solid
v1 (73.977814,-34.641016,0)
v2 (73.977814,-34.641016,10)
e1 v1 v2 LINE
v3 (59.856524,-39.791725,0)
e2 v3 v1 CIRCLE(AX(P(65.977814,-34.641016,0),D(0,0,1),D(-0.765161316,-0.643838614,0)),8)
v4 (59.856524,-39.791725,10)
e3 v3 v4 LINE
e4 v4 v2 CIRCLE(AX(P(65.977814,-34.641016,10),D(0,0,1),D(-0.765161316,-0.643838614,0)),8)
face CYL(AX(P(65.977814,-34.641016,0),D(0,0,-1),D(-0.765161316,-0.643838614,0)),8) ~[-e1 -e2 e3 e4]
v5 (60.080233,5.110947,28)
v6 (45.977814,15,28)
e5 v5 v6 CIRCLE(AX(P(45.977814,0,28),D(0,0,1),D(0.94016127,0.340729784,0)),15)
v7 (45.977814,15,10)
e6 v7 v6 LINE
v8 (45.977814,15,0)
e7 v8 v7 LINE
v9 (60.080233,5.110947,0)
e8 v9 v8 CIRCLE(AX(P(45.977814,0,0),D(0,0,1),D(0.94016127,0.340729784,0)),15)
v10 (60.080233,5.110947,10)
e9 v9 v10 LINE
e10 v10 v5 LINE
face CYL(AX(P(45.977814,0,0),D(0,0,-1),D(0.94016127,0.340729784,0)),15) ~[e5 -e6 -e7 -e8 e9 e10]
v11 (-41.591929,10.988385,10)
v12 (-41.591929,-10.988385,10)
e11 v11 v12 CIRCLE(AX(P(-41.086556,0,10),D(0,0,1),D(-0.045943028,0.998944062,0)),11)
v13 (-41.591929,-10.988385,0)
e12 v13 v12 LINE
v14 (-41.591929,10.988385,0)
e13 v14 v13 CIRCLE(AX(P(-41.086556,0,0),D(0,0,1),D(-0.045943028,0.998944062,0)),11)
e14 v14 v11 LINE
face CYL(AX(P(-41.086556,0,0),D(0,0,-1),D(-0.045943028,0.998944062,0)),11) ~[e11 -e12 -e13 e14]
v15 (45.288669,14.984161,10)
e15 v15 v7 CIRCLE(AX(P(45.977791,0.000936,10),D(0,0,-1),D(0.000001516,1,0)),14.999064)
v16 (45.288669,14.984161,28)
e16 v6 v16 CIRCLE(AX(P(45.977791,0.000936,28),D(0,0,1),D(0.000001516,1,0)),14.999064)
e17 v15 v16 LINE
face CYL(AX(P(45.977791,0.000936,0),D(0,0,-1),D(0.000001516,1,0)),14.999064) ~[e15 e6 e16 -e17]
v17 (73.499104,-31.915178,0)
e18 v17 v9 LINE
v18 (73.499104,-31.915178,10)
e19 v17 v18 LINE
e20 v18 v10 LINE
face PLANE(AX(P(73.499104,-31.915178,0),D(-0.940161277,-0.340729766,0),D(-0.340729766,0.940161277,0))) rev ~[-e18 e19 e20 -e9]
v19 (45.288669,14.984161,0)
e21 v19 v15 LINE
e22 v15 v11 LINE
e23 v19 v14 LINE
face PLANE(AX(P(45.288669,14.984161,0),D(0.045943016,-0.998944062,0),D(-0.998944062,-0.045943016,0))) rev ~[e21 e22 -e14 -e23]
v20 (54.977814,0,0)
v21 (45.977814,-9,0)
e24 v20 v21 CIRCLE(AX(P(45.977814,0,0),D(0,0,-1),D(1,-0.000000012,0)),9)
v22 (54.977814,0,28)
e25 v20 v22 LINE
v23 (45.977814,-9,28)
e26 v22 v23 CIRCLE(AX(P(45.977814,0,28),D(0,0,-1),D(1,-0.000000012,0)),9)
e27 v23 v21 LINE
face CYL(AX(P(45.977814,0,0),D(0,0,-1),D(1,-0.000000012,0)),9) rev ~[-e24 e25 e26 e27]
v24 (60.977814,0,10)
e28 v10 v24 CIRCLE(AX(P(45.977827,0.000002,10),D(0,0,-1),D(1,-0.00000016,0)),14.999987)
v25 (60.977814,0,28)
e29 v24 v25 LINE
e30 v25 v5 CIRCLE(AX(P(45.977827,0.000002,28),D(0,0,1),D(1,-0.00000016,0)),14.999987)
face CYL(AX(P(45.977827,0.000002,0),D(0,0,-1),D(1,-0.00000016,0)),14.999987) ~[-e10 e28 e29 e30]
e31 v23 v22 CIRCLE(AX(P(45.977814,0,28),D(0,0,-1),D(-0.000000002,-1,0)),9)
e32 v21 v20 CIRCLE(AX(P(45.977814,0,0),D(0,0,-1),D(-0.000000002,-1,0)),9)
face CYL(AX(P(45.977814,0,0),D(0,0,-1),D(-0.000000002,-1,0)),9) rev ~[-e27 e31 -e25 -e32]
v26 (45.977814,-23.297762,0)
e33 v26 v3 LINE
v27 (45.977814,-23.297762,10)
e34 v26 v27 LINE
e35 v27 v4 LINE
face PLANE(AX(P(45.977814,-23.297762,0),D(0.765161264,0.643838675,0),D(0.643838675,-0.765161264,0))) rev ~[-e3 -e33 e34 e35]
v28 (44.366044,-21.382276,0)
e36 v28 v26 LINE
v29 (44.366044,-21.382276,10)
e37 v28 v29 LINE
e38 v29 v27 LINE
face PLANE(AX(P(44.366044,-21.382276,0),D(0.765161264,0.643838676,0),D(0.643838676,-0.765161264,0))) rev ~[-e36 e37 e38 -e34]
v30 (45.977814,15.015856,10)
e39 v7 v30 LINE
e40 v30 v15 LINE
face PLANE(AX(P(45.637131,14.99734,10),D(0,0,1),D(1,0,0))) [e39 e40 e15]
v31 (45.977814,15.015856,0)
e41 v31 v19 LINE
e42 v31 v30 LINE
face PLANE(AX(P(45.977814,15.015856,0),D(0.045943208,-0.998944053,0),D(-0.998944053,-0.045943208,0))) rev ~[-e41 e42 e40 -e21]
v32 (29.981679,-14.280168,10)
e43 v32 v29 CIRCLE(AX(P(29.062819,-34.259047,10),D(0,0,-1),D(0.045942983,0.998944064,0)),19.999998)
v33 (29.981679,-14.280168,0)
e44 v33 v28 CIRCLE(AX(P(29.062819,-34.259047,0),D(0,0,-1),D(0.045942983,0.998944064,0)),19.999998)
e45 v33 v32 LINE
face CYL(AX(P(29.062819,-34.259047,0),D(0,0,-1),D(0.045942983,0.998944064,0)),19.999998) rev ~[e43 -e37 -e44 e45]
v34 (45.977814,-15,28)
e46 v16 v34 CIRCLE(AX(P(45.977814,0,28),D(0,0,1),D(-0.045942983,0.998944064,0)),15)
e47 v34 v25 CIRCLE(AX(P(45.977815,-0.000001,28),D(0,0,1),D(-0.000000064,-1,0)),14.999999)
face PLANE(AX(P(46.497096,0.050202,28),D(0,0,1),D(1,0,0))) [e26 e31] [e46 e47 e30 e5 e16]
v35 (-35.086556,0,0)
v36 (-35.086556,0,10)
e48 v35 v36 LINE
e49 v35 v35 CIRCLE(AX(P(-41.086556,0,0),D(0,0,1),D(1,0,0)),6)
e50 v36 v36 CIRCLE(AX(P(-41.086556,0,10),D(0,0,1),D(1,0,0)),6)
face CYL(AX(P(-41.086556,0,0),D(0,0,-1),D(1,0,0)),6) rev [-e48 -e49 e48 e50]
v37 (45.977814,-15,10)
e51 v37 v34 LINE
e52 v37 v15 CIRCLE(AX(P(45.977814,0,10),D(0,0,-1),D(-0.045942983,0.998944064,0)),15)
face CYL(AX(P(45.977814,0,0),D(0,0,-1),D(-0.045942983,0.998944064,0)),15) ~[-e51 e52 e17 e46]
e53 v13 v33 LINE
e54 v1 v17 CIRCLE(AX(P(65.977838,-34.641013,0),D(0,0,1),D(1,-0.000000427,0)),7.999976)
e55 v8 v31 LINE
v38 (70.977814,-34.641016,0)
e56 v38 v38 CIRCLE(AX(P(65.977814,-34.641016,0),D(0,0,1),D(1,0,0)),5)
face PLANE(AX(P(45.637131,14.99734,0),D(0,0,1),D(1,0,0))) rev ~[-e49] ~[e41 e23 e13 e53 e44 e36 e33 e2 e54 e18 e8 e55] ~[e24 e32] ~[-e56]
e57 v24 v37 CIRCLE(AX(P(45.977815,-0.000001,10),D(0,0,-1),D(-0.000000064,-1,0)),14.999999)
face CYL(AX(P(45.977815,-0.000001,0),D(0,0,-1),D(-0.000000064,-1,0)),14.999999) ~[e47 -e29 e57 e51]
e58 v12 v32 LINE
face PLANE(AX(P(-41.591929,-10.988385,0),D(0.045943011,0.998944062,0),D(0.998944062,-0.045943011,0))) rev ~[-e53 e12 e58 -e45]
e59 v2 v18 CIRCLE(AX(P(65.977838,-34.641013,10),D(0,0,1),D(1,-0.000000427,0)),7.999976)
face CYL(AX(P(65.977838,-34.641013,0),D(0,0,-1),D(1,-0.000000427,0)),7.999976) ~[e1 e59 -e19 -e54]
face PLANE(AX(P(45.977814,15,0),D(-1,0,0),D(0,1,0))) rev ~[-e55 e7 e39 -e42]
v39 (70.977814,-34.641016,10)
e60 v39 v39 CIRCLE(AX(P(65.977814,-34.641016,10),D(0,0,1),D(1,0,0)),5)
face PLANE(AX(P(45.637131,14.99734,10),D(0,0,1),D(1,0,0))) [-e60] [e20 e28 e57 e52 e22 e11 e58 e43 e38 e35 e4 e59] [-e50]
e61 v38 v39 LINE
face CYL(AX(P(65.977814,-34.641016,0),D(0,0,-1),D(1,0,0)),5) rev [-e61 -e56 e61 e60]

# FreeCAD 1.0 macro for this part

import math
import FreeCAD as App
import Part
import Sketcher

V = App.Vector
Q = App.Units.Quantity

doc = App.newDocument("Part")
params = doc.addObject("Spreadsheet::Sheet", "Params")
for row, (alias, value) in enumerate([
    ("sketch1_diameter", "10 mm"),
    ("sketch1_diameter2", "12 mm"),
    ("sketch1_radius", "11 mm"),
    ("sketch1_radius2", "19.999998 mm"),
    ("sketch1_radius3", "8 mm"),
    ("pad1_length", "10 mm"),
    ("sketch2_radius", "15 mm"),
    ("sketch2_radius2", "15 mm"),
    ("sketch2_radius3", "9 mm"),
    ("pad2_length", "28 mm"),
], start=1):
    params.set(f"A{row}", alias)
    params.set(f"B{row}", "=" + value)
    params.setAlias(f"B{row}", alias)

body = doc.addObject("PartDesign::Body", "Body")

# Sketch on XY plane
sketch1 = body.newObject("Sketcher::SketchObject", "Sketch")
sketch1.AttachmentSupport = (doc.getObject("XY_Plane"), [""])
sketch1.MapMode = "FlatFace"
sketch1.addGeometry([
    Part.LineSegment(V(45.977814, 15.015856, 0), V(45.288669, 14.984161, 0)),  # 0
    Part.LineSegment(V(45.288669, 14.984161, 0), V(-41.591929, 10.988385, 0)),  # 1
    Part.ArcOfCircle(Part.Circle(V(-41.086556, 0, 0), V(0, 0, 1), 11), math.radians(92.633269), math.radians(267.366731)),  # 2
    Part.LineSegment(V(-41.591929, -10.988385, 0), V(29.981679, -14.280168, 0)),  # 3
    Part.ArcOfCircle(Part.Circle(V(29.062819, -34.259047, 0), V(0, 0, 1), 19.999998), math.radians(40.078656), math.radians(87.366734)),  # 4
    Part.LineSegment(V(44.366044, -21.382276, 0), V(45.977814, -23.297762, 0)),  # 5
    Part.LineSegment(V(45.977814, -23.297762, 0), V(59.856524, -39.791725, 0)),  # 6
    Part.ArcOfCircle(Part.Circle(V(65.977814, -34.641016, 0), V(0, 0, 1), 8), math.radians(-139.921346), math.radians(0.000002)),  # 7
    Part.ArcOfCircle(Part.Circle(V(65.977838, -34.641013, 0), V(0, 0, 1), 7.999976), math.radians(-0.000024), math.radians(19.921376)),  # 8
    Part.LineSegment(V(73.499104, -31.915178, 0), V(60.080233, 5.110947, 0)),  # 9
    Part.ArcOfCircle(Part.Circle(V(45.977814, 0, 0), V(0, 0, 1), 15), math.radians(19.921343), math.radians(90.000001)),  # 10
    Part.LineSegment(V(45.977814, 15, 0), V(45.977814, 15.015856, 0)),  # 11
    Part.Circle(V(65.977814, -34.641016, 0), V(0, 0, 1), 5),  # 12
    Part.Circle(V(-41.086556, 0, 0), V(0, 0, 1), 6),  # 13
    Part.ArcOfCircle(Part.Circle(V(45.977814, 0, 0), V(0, 0, 1), 9), math.radians(0), math.radians(270)),  # 14
    Part.ArcOfCircle(Part.Circle(V(45.977814, 0, 0), V(0, 0, 1), 9), math.radians(-89.999999), math.radians(-0.000001)),  # 15
], False)
sketch1.addConstraint([
    Sketcher.Constraint("Coincident", 0, 2, 1, 1),
    Sketcher.Constraint("Tangent", 1, 2, 2, 1),
    Sketcher.Constraint("Tangent", 2, 2, 3, 1),
    Sketcher.Constraint("Tangent", 3, 2, 4, 2),
    Sketcher.Constraint("Tangent", 4, 1, 5, 1),
    Sketcher.Constraint("Coincident", 5, 2, 6, 1),
    Sketcher.Constraint("Tangent", 6, 2, 7, 1),
    Sketcher.Constraint("Tangent", 7, 2, 8, 1),
    Sketcher.Constraint("Tangent", 8, 2, 9, 1),
    Sketcher.Constraint("Tangent", 9, 2, 10, 1),
    Sketcher.Constraint("Coincident", 10, 2, 11, 1),
    Sketcher.Constraint("Coincident", 11, 2, 0, 1),
    Sketcher.Constraint("Tangent", 14, 1, 15, 2),
    Sketcher.Constraint("Coincident", 15, 1, 14, 2),
    Sketcher.Constraint("Vertical", 11),
    Sketcher.Constraint("Coincident", 12, 3, 7, 3),
    Sketcher.Constraint("Coincident", 13, 3, 2, 3),
    Sketcher.Constraint("Coincident", 14, 3, 10, 3),
    Sketcher.Constraint("Symmetric", 1, 2, 2, 2, -1),
    Sketcher.Constraint("PointOnObject", 10, 3, -1),
    Sketcher.Constraint("PointOnObject", 14, 1, -1),
    Sketcher.Constraint("Parallel", 0, 1),
    Sketcher.Constraint("Parallel", 5, 6),
    Sketcher.Constraint("Horizontal", 12, 3, 7, 2),
    Sketcher.Constraint("Vertical", 15, 3, 5, 2),
    Sketcher.Constraint("Vertical", 5, 2, 10, 2),
    Sketcher.Constraint("Vertical", 11, 2, 15, 1),
    Sketcher.Constraint("Diameter", 12, Q("10 mm")),
    Sketcher.Constraint("Diameter", 13, Q("12 mm")),
    Sketcher.Constraint("Radius", 2, Q("11 mm")),
    Sketcher.Constraint("Radius", 4, Q("19.999998 mm")),
    Sketcher.Constraint("Radius", 7, Q("8 mm")),
    Sketcher.Constraint("Radius", 10, Q("15 mm")),
    Sketcher.Constraint("Radius", 14, Q("9 mm")),
    Sketcher.Constraint("DistanceX", 10, 3, 7, 3, Q("20 mm")),
    Sketcher.Constraint("Radius", 8, Q("7.999976 mm")),
    Sketcher.Constraint("Distance", 6, Q("21.556192 mm")),
    Sketcher.Constraint("DistanceY", 11, 1, 11, 2, Q("0.015856 mm")),
    Sketcher.Constraint("DistanceX", -1, 1, 4, 3, Q("29.062819 mm")),
    Sketcher.Constraint("DistanceX", -1, 1, 0, 2, Q("45.288669 mm")),
    Sketcher.Constraint("DistanceY", -1, 1, 0, 2, Q("14.984161 mm")),
    Sketcher.Constraint("DistanceX", 1, 2, -1, 1, Q("41.591929 mm")),
])
sketch1.setExpression("Constraints[27]", "Params.sketch1_diameter")
sketch1.setExpression("Constraints[28]", "Params.sketch1_diameter2")
sketch1.setExpression("Constraints[29]", "Params.sketch1_radius")
sketch1.setExpression("Constraints[30]", "Params.sketch1_radius2")
sketch1.setExpression("Constraints[31]", "Params.sketch1_radius3")
pad1 = body.newObject("PartDesign::Pad", "Pad")
pad1.Profile = sketch1
pad1.setExpression("Length", "Params.pad1_length")

# Sketch on XY plane
sketch2 = body.newObject("Sketcher::SketchObject", "Sketch001")
sketch2.AttachmentSupport = (doc.getObject("XY_Plane"), [""])
sketch2.MapMode = "FlatFace"
sketch2.addGeometry([
    Part.ArcOfCircle(Part.Circle(V(45.977791, 0.000936, 0), V(0, 0, 1), 14.999064), math.radians(89.999913), math.radians(92.633344)),  # 0
    Part.ArcOfCircle(Part.Circle(V(45.977814, 0, 0), V(0, 0, 1), 15), math.radians(92.633266), math.radians(270.000001)),  # 1
    Part.ArcOfCircle(Part.Circle(V(45.977815, -0.000001, 0), V(0, 0, 1), 14.999999), math.radians(-90.000004), math.radians(0.000004)),  # 2
    Part.ArcOfCircle(Part.Circle(V(45.977827, 0.000002, 0), V(0, 0, 1), 14.999987), math.radians(-0.000009), math.radians(19.921352)),  # 3
    Part.ArcOfCircle(Part.Circle(V(45.977814, 0, 0), V(0, 0, 1), 15), math.radians(19.921343), math.radians(90.000001)),  # 4
    Part.ArcOfCircle(Part.Circle(V(45.977814, 0, 0), V(0, 0, 1), 9), math.radians(0), math.radians(270)),  # 5
    Part.ArcOfCircle(Part.Circle(V(45.977814, 0, 0), V(0, 0, 1), 9), math.radians(-89.999999), math.radians(-0.000001)),  # 6
], False)
sketch2.addConstraint([
    Sketcher.Constraint("Coincident", 0, 2, 1, 1),
    Sketcher.Constraint("Coincident", 1, 2, 2, 1),
    Sketcher.Constraint("Coincident", 2, 2, 3, 1),
    Sketcher.Constraint("Coincident", 3, 2, 4, 1),
    Sketcher.Constraint("Coincident", 4, 2, 0, 1),
    Sketcher.Constraint("Coincident", 5, 1, 6, 2),
    Sketcher.Constraint("Coincident", 6, 1, 5, 2),
    Sketcher.Constraint("Coincident", 2, 3, 1, 3),
    Sketcher.Constraint("Coincident", 4, 3, 1, 3),
    Sketcher.Constraint("Coincident", 5, 3, 1, 3),
    Sketcher.Constraint("PointOnObject", 1, 3, -1),
    Sketcher.Constraint("PointOnObject", 6, 3, -1),
    Sketcher.Constraint("PointOnObject", 2, 2, -1),
    Sketcher.Constraint("PointOnObject", 5, 1, -1),
    Sketcher.Constraint("Radius", 1, Q("15 mm")),
    Sketcher.Constraint("Radius", 4, Q("15 mm")),
    Sketcher.Constraint("Radius", 5, Q("9 mm")),
    Sketcher.Constraint("Radius", 0, Q("14.999064 mm")),
    Sketcher.Constraint("Radius", 3, Q("14.999987 mm")),
    Sketcher.Constraint("DistanceX", -1, 1, 0, 3, Q("45.977791 mm")),
    Sketcher.Constraint("DistanceX", -1, 1, 0, 2, Q("45.288669 mm")),
    Sketcher.Constraint("DistanceX", 3, 2, 2, 2, Q("0.897581 mm")),
    Sketcher.Constraint("DistanceX", -1, 1, 1, 2, Q("45.977814 mm")),
    Sketcher.Constraint("DistanceX", -1, 1, 4, 2, Q("45.977814 mm")),
    Sketcher.Constraint("DistanceX", -1, 1, 6, 1, Q("45.977814 mm")),
])
sketch2.setExpression("Constraints[14]", "Params.sketch2_radius")
sketch2.setExpression("Constraints[15]", "Params.sketch2_radius2")
sketch2.setExpression("Constraints[16]", "Params.sketch2_radius3")
pad2 = body.newObject("PartDesign::Pad", "Pad001")
pad2.Profile = sketch2
pad2.setExpression("Length", "Params.pad2_length")

doc.recompute()
